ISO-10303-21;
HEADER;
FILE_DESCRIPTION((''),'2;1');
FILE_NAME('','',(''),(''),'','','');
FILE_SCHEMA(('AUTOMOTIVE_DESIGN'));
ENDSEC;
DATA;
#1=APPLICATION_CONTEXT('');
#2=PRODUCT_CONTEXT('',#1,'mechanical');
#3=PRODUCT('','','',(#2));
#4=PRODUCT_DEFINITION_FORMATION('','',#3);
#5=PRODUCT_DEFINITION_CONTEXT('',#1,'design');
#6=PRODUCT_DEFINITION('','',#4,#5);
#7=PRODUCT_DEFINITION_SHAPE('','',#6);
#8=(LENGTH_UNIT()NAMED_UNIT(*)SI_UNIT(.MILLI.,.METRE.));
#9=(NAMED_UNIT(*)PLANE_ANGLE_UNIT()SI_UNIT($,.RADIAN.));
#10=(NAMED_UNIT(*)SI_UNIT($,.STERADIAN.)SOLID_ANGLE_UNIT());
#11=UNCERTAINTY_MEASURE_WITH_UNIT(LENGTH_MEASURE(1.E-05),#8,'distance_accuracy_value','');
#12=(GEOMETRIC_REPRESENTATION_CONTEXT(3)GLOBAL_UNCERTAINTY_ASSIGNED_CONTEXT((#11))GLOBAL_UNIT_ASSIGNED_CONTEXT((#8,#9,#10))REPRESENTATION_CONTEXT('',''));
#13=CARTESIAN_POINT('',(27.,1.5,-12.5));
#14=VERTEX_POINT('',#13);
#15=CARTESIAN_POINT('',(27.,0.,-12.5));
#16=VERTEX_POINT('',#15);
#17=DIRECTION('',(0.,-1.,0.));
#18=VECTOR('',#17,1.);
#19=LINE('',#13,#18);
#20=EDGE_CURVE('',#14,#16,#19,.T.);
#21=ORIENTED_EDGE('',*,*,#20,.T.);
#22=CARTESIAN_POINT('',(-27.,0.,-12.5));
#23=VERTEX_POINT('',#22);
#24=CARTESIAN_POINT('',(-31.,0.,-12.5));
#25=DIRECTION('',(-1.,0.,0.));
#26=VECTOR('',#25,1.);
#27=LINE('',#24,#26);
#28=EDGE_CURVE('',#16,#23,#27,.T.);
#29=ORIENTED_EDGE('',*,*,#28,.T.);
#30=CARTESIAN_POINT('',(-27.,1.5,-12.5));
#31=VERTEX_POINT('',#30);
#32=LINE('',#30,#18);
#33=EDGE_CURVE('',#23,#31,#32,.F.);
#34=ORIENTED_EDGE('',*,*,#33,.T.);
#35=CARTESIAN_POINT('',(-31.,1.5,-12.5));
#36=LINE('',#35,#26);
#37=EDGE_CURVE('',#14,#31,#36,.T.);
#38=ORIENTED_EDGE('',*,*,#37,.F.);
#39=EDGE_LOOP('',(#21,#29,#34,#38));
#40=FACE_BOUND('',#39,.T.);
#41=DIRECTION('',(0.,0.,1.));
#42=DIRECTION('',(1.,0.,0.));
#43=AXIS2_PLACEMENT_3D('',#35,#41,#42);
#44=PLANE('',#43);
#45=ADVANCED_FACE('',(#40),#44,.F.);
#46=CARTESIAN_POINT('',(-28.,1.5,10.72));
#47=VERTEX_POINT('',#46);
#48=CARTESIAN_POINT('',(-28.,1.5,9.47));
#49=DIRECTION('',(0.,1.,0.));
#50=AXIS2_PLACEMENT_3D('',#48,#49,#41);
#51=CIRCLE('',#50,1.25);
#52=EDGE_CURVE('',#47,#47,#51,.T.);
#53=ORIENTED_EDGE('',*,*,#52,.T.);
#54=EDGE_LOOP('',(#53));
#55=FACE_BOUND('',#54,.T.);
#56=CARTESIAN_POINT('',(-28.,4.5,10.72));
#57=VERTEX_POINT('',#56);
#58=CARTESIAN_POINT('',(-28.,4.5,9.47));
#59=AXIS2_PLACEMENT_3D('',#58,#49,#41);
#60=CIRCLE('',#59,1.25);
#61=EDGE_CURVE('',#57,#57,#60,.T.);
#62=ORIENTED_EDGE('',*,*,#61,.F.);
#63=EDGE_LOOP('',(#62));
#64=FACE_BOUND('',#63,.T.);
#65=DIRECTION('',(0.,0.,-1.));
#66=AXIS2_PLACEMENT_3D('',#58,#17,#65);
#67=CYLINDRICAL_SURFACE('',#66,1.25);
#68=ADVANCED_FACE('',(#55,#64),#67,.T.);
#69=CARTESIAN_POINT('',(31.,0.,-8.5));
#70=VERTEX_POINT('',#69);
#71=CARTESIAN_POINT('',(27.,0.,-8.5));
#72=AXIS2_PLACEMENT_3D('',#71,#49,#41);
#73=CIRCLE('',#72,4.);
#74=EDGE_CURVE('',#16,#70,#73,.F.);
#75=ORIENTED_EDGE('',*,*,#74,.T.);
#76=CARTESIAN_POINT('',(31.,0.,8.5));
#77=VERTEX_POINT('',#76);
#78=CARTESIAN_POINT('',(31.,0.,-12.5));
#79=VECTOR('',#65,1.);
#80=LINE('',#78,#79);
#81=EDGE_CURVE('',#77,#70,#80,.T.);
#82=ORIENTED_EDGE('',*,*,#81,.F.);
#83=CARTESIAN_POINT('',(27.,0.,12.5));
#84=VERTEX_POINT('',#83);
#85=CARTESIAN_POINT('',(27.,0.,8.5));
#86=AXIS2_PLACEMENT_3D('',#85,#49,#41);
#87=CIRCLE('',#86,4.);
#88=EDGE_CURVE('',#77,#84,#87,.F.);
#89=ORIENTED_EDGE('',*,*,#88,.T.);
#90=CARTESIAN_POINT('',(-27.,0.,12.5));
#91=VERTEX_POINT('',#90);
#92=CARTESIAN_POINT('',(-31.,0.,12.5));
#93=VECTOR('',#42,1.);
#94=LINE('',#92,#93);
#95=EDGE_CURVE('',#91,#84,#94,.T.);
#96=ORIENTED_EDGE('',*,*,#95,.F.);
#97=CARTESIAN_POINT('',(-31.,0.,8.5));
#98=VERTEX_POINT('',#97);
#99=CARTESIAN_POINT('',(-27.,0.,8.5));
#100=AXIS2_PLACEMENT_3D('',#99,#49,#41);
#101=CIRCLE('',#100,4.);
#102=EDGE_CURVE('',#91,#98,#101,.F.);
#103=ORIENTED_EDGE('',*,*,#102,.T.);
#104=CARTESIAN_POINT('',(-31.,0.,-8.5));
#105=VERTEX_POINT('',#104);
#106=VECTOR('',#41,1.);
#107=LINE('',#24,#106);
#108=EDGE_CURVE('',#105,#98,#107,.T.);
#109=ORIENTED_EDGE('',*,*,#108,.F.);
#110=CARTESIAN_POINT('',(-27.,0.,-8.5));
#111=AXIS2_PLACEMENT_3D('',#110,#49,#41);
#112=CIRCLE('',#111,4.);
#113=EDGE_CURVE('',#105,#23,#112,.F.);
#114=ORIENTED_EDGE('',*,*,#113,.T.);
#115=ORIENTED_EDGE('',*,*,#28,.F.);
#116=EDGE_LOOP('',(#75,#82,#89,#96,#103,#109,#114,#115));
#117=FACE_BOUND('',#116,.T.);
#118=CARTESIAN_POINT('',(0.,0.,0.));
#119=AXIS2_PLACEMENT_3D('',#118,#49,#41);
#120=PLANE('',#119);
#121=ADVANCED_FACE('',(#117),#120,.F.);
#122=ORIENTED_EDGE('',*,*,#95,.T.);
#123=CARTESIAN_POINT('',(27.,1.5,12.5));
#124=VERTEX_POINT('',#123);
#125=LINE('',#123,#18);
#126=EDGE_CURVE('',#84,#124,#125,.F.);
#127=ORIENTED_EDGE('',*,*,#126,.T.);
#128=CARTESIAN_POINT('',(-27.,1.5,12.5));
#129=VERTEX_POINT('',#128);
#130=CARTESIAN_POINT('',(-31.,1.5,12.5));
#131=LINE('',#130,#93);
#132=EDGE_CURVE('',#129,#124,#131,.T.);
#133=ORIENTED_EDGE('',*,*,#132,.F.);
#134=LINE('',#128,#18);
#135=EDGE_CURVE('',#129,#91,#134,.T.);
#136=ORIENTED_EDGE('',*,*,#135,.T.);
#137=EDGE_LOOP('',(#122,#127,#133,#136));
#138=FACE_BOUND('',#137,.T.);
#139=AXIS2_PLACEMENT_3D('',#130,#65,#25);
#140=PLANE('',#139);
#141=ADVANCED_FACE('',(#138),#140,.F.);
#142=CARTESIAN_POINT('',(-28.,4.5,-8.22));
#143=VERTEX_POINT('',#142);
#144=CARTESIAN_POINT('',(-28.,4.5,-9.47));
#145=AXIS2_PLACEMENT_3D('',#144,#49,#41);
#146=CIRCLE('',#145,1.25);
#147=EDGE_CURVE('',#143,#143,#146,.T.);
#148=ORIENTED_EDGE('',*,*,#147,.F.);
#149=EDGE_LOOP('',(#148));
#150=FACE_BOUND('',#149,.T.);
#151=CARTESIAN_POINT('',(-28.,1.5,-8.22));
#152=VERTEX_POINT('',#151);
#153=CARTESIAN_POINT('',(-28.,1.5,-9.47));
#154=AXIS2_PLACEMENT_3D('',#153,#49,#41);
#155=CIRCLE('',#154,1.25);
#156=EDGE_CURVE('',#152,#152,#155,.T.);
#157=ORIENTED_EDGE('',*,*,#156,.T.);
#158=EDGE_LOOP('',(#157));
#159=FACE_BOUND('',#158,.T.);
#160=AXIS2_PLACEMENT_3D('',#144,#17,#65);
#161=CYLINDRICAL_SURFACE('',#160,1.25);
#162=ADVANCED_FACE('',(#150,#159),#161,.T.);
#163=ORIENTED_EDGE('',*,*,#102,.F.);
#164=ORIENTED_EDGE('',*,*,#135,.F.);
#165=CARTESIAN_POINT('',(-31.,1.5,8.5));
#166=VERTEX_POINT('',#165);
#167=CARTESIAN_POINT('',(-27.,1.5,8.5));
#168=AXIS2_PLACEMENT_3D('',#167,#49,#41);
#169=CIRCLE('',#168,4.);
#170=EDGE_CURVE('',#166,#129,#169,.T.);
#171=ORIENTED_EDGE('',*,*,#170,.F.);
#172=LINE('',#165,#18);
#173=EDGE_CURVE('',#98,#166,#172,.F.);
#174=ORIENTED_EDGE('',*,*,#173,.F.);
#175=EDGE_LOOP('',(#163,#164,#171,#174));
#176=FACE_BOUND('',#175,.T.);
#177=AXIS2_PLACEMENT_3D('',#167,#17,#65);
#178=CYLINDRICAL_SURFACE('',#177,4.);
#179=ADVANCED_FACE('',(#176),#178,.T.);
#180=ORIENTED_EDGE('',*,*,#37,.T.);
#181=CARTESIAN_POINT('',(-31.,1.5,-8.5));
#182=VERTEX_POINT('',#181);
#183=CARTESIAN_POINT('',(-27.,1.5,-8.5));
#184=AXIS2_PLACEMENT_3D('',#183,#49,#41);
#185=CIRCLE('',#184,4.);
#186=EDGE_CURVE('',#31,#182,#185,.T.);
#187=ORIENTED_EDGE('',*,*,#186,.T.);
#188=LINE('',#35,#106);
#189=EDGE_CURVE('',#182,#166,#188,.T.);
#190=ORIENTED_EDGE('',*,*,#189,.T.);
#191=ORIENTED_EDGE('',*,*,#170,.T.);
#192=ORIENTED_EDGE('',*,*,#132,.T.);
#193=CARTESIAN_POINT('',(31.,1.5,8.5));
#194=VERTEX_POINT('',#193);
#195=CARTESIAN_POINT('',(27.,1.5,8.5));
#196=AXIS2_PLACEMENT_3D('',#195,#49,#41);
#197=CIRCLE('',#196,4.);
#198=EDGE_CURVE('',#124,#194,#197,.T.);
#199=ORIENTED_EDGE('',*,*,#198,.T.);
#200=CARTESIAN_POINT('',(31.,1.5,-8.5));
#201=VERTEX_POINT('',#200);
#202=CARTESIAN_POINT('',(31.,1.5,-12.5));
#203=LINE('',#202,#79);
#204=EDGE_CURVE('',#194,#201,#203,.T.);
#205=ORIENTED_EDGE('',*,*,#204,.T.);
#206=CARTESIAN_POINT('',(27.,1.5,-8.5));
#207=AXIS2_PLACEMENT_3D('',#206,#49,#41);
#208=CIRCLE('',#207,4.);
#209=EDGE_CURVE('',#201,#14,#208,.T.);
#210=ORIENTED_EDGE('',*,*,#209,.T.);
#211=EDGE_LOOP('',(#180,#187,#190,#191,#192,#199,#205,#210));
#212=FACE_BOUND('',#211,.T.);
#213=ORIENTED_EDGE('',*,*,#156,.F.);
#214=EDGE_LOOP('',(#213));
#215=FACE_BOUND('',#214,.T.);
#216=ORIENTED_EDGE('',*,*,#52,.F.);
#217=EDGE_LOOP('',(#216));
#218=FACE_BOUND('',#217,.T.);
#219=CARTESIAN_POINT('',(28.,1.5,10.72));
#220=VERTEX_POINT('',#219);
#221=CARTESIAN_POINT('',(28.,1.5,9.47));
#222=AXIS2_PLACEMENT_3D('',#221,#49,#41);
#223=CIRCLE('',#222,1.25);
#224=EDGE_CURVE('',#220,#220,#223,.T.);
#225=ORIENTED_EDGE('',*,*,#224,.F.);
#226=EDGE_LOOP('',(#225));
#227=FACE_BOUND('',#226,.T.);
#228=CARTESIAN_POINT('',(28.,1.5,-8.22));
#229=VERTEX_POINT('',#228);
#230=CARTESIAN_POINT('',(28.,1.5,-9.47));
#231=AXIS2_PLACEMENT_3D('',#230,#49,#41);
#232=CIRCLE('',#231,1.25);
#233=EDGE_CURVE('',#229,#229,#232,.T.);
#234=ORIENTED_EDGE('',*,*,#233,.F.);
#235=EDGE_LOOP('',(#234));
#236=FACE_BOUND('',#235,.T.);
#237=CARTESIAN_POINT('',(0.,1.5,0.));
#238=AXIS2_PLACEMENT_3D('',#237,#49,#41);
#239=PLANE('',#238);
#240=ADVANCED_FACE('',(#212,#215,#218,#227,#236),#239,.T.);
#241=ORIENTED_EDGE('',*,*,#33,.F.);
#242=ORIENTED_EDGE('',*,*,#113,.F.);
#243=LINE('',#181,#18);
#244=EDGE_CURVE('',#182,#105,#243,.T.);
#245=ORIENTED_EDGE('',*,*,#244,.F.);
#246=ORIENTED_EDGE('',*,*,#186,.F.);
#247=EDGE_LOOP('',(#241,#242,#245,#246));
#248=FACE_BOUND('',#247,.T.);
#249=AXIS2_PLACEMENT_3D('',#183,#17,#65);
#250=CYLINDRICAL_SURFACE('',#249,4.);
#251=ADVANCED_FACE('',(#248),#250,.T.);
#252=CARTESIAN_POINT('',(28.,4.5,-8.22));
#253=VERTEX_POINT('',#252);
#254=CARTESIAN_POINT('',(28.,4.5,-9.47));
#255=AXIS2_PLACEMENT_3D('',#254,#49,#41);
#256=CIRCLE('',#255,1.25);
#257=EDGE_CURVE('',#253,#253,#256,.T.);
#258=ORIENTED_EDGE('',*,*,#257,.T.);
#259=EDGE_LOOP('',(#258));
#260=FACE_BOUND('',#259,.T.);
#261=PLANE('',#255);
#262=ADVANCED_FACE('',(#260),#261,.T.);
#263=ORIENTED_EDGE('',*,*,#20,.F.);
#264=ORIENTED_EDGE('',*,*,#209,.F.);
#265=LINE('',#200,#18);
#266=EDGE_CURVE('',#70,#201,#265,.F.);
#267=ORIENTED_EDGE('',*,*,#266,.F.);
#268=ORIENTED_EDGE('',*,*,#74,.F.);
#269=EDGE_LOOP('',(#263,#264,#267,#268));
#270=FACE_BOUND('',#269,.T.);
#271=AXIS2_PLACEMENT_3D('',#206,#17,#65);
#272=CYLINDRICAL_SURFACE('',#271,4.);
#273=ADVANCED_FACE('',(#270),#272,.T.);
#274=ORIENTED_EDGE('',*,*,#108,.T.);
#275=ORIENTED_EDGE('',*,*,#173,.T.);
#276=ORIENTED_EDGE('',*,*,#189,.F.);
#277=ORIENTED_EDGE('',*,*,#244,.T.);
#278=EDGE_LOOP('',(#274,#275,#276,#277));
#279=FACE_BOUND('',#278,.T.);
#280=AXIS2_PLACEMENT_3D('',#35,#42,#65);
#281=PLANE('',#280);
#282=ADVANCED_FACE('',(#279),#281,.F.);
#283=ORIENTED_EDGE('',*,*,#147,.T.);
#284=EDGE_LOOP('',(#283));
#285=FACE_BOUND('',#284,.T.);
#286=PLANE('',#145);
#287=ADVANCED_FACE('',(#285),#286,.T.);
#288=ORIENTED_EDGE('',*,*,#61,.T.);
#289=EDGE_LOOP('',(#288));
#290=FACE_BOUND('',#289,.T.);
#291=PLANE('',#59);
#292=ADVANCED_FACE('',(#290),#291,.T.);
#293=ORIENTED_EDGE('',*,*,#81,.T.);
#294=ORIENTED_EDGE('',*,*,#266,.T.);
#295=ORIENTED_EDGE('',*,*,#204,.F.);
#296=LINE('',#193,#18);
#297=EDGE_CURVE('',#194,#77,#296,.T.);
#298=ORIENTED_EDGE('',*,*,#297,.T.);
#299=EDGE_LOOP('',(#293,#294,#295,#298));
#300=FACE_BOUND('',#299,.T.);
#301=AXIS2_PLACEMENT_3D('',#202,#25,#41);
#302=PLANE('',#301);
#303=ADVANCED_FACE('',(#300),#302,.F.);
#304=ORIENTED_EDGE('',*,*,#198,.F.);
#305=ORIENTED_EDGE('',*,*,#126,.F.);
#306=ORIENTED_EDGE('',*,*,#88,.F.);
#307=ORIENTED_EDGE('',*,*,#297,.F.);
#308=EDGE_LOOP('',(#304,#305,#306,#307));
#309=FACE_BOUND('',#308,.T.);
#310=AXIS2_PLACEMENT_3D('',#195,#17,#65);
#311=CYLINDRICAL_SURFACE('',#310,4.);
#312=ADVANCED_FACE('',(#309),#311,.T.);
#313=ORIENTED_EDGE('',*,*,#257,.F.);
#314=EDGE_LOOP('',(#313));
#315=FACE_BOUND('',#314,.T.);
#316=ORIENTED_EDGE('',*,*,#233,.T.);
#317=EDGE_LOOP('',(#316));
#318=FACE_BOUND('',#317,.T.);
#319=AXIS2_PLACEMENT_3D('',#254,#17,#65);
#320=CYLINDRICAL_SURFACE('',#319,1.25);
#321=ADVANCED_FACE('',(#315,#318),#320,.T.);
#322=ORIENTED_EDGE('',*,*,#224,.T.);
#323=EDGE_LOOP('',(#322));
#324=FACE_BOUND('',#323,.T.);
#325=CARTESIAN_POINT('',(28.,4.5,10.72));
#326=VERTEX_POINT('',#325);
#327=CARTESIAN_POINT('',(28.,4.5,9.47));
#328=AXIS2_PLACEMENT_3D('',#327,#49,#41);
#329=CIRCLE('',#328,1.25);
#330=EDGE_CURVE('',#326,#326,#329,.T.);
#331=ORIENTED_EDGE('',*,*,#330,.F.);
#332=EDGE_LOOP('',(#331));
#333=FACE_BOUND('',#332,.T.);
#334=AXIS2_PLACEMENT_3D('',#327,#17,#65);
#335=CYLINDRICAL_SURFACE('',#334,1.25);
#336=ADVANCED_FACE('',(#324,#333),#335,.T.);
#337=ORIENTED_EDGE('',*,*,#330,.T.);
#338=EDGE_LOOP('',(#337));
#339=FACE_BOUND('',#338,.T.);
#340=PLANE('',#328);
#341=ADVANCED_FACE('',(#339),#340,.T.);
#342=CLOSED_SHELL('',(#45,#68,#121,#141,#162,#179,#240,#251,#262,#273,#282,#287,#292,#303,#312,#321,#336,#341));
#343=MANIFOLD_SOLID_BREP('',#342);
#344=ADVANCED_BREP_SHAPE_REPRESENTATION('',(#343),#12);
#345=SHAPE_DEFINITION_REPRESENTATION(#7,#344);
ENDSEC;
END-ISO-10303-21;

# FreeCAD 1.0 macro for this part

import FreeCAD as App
import Part
import Sketcher

V = App.Vector
Q = App.Units.Quantity


def edges_at(feature, points):
    """Names of the edges that pass closest to the given points."""
    edges = feature.Shape.Edges
    near = lambda p: min(range(len(edges)), key=lambda i: edges[i].distToShape(Part.Vertex(*p))[0])
    return sorted({f"Edge{near(p) + 1}" for p in points})


def add_polygon(sketch, points):
    """Adds a closed chain of lines whose ends are joined by coincident constraints."""
    first, n = sketch.GeometryCount, len(points)
    for a, b in zip(points, points[1:] + points[:1]):
        sketch.addGeometry(Part.LineSegment(App.Vector(*a, 0), App.Vector(*b, 0)), False)
    for i in range(n):
        sketch.addConstraint(Sketcher.Constraint("Coincident", first + i, 2, first + (i + 1) % n, 1))

doc = App.newDocument("Part")
params = doc.addObject("Spreadsheet::Sheet", "Params")
for row, (alias, value) in enumerate([
    ("sketch1_width", "62 mm"),
    ("sketch1_height", "25 mm"),
    ("pad1_length", "1.5 mm"),
    ("fillet_radius", "4 mm"),
    ("sketch2_diameter", "2.5 mm"),
    ("pad2_length", "3 mm"),
], start=1):
    params.set(f"A{row}", alias)
    params.set(f"B{row}", "=" + value)
    params.setAlias(f"B{row}", alias)

body = doc.addObject("PartDesign::Body", "Body")

# Sketch on XZ plane
sketch1 = body.newObject("Sketcher::SketchObject", "Sketch")
sketch1.AttachmentSupport = (doc.getObject("XZ_Plane"), [""])
sketch1.MapMode = "FlatFace"
add_polygon(sketch1, [(-31, -12.5), (-31, 12.5), (31, 12.5), (31, -12.5)])  # lines 0-3
sketch1.addConstraint(Sketcher.Constraint("Vertical", 0))
sketch1.addConstraint(Sketcher.Constraint("Horizontal", 1))
sketch1.addConstraint(Sketcher.Constraint("Vertical", 2))
sketch1.addConstraint(Sketcher.Constraint("Horizontal", 3))
sketch1.addConstraint(Sketcher.Constraint("Symmetric", 0, 2, 2, 2, -1, 1))
sketch1.addConstraint(Sketcher.Constraint("DistanceX", 1, 1, 1, 2, Q("62 mm")))
sketch1.addConstraint(Sketcher.Constraint("DistanceY", 0, 1, 0, 2, Q("25 mm")))
sketch1.setExpression("Constraints[9]", "Params.sketch1_width")
sketch1.setExpression("Constraints[10]", "Params.sketch1_height")
pad1 = body.newObject("PartDesign::Pad", "Pad")
pad1.Profile = sketch1
pad1.setExpression("Length", "Params.pad1_length")
pad1.Reversed = True
doc.recompute()

fillet = body.newObject("PartDesign::Fillet", "Fillet")
fillet.Base = (pad1, edges_at(pad1, [
    (31, 0.75, 12.5),
    (-31, 0.75, 12.5),
    (-31, 0.75, -12.5),
    (31, 0.75, -12.5),
]))
fillet.setExpression("Radius", "Params.fillet_radius")

# Sketch on XZ plane
sketch2 = body.newObject("Sketcher::SketchObject", "Sketch001")
sketch2.AttachmentSupport = (doc.getObject("XZ_Plane"), [""])
sketch2.MapMode = "FlatFace"
sketch2.AttachmentOffset = App.Placement(V(0, 0, -1.5), App.Rotation())
sketch2.addGeometry(Part.Circle(V(-28, -9.47, 0), V(0, 0, 1), 1.25), False)
sketch2.addGeometry(Part.Circle(V(28, -9.47, 0), V(0, 0, 1), 1.25), False)
sketch2.addGeometry(Part.Circle(V(28, 9.47, 0), V(0, 0, 1), 1.25), False)
sketch2.addGeometry(Part.Circle(V(-28, 9.47, 0), V(0, 0, 1), 1.25), False)
sketch2.addConstraint(Sketcher.Constraint("Equal", 0, 1))
sketch2.addConstraint(Sketcher.Constraint("Equal", 1, 2))
sketch2.addConstraint(Sketcher.Constraint("Equal", 2, 3))
sketch2.addConstraint(Sketcher.Constraint("Symmetric", 0, 3, 2, 3, -1, 1))
sketch2.addConstraint(Sketcher.Constraint("Symmetric", 1, 3, 3, 3, -1, 1))
sketch2.addConstraint(Sketcher.Constraint("Symmetric", 0, 3, 1, 3, -2))
sketch2.addConstraint(Sketcher.Constraint("Diameter", 0, Q("2.5 mm")))
sketch2.addConstraint(Sketcher.Constraint("DistanceX", 0, 3, -1, 1, Q("28 mm")))
sketch2.addConstraint(Sketcher.Constraint("DistanceY", 0, 3, -1, 1, Q("9.47 mm")))
sketch2.setExpression("Constraints[6]", "Params.sketch2_diameter")
pad2 = body.newObject("PartDesign::Pad", "Pad001")
pad2.Profile = sketch2
pad2.setExpression("Length", "Params.pad2_length")
pad2.Reversed = True

doc.recompute()
